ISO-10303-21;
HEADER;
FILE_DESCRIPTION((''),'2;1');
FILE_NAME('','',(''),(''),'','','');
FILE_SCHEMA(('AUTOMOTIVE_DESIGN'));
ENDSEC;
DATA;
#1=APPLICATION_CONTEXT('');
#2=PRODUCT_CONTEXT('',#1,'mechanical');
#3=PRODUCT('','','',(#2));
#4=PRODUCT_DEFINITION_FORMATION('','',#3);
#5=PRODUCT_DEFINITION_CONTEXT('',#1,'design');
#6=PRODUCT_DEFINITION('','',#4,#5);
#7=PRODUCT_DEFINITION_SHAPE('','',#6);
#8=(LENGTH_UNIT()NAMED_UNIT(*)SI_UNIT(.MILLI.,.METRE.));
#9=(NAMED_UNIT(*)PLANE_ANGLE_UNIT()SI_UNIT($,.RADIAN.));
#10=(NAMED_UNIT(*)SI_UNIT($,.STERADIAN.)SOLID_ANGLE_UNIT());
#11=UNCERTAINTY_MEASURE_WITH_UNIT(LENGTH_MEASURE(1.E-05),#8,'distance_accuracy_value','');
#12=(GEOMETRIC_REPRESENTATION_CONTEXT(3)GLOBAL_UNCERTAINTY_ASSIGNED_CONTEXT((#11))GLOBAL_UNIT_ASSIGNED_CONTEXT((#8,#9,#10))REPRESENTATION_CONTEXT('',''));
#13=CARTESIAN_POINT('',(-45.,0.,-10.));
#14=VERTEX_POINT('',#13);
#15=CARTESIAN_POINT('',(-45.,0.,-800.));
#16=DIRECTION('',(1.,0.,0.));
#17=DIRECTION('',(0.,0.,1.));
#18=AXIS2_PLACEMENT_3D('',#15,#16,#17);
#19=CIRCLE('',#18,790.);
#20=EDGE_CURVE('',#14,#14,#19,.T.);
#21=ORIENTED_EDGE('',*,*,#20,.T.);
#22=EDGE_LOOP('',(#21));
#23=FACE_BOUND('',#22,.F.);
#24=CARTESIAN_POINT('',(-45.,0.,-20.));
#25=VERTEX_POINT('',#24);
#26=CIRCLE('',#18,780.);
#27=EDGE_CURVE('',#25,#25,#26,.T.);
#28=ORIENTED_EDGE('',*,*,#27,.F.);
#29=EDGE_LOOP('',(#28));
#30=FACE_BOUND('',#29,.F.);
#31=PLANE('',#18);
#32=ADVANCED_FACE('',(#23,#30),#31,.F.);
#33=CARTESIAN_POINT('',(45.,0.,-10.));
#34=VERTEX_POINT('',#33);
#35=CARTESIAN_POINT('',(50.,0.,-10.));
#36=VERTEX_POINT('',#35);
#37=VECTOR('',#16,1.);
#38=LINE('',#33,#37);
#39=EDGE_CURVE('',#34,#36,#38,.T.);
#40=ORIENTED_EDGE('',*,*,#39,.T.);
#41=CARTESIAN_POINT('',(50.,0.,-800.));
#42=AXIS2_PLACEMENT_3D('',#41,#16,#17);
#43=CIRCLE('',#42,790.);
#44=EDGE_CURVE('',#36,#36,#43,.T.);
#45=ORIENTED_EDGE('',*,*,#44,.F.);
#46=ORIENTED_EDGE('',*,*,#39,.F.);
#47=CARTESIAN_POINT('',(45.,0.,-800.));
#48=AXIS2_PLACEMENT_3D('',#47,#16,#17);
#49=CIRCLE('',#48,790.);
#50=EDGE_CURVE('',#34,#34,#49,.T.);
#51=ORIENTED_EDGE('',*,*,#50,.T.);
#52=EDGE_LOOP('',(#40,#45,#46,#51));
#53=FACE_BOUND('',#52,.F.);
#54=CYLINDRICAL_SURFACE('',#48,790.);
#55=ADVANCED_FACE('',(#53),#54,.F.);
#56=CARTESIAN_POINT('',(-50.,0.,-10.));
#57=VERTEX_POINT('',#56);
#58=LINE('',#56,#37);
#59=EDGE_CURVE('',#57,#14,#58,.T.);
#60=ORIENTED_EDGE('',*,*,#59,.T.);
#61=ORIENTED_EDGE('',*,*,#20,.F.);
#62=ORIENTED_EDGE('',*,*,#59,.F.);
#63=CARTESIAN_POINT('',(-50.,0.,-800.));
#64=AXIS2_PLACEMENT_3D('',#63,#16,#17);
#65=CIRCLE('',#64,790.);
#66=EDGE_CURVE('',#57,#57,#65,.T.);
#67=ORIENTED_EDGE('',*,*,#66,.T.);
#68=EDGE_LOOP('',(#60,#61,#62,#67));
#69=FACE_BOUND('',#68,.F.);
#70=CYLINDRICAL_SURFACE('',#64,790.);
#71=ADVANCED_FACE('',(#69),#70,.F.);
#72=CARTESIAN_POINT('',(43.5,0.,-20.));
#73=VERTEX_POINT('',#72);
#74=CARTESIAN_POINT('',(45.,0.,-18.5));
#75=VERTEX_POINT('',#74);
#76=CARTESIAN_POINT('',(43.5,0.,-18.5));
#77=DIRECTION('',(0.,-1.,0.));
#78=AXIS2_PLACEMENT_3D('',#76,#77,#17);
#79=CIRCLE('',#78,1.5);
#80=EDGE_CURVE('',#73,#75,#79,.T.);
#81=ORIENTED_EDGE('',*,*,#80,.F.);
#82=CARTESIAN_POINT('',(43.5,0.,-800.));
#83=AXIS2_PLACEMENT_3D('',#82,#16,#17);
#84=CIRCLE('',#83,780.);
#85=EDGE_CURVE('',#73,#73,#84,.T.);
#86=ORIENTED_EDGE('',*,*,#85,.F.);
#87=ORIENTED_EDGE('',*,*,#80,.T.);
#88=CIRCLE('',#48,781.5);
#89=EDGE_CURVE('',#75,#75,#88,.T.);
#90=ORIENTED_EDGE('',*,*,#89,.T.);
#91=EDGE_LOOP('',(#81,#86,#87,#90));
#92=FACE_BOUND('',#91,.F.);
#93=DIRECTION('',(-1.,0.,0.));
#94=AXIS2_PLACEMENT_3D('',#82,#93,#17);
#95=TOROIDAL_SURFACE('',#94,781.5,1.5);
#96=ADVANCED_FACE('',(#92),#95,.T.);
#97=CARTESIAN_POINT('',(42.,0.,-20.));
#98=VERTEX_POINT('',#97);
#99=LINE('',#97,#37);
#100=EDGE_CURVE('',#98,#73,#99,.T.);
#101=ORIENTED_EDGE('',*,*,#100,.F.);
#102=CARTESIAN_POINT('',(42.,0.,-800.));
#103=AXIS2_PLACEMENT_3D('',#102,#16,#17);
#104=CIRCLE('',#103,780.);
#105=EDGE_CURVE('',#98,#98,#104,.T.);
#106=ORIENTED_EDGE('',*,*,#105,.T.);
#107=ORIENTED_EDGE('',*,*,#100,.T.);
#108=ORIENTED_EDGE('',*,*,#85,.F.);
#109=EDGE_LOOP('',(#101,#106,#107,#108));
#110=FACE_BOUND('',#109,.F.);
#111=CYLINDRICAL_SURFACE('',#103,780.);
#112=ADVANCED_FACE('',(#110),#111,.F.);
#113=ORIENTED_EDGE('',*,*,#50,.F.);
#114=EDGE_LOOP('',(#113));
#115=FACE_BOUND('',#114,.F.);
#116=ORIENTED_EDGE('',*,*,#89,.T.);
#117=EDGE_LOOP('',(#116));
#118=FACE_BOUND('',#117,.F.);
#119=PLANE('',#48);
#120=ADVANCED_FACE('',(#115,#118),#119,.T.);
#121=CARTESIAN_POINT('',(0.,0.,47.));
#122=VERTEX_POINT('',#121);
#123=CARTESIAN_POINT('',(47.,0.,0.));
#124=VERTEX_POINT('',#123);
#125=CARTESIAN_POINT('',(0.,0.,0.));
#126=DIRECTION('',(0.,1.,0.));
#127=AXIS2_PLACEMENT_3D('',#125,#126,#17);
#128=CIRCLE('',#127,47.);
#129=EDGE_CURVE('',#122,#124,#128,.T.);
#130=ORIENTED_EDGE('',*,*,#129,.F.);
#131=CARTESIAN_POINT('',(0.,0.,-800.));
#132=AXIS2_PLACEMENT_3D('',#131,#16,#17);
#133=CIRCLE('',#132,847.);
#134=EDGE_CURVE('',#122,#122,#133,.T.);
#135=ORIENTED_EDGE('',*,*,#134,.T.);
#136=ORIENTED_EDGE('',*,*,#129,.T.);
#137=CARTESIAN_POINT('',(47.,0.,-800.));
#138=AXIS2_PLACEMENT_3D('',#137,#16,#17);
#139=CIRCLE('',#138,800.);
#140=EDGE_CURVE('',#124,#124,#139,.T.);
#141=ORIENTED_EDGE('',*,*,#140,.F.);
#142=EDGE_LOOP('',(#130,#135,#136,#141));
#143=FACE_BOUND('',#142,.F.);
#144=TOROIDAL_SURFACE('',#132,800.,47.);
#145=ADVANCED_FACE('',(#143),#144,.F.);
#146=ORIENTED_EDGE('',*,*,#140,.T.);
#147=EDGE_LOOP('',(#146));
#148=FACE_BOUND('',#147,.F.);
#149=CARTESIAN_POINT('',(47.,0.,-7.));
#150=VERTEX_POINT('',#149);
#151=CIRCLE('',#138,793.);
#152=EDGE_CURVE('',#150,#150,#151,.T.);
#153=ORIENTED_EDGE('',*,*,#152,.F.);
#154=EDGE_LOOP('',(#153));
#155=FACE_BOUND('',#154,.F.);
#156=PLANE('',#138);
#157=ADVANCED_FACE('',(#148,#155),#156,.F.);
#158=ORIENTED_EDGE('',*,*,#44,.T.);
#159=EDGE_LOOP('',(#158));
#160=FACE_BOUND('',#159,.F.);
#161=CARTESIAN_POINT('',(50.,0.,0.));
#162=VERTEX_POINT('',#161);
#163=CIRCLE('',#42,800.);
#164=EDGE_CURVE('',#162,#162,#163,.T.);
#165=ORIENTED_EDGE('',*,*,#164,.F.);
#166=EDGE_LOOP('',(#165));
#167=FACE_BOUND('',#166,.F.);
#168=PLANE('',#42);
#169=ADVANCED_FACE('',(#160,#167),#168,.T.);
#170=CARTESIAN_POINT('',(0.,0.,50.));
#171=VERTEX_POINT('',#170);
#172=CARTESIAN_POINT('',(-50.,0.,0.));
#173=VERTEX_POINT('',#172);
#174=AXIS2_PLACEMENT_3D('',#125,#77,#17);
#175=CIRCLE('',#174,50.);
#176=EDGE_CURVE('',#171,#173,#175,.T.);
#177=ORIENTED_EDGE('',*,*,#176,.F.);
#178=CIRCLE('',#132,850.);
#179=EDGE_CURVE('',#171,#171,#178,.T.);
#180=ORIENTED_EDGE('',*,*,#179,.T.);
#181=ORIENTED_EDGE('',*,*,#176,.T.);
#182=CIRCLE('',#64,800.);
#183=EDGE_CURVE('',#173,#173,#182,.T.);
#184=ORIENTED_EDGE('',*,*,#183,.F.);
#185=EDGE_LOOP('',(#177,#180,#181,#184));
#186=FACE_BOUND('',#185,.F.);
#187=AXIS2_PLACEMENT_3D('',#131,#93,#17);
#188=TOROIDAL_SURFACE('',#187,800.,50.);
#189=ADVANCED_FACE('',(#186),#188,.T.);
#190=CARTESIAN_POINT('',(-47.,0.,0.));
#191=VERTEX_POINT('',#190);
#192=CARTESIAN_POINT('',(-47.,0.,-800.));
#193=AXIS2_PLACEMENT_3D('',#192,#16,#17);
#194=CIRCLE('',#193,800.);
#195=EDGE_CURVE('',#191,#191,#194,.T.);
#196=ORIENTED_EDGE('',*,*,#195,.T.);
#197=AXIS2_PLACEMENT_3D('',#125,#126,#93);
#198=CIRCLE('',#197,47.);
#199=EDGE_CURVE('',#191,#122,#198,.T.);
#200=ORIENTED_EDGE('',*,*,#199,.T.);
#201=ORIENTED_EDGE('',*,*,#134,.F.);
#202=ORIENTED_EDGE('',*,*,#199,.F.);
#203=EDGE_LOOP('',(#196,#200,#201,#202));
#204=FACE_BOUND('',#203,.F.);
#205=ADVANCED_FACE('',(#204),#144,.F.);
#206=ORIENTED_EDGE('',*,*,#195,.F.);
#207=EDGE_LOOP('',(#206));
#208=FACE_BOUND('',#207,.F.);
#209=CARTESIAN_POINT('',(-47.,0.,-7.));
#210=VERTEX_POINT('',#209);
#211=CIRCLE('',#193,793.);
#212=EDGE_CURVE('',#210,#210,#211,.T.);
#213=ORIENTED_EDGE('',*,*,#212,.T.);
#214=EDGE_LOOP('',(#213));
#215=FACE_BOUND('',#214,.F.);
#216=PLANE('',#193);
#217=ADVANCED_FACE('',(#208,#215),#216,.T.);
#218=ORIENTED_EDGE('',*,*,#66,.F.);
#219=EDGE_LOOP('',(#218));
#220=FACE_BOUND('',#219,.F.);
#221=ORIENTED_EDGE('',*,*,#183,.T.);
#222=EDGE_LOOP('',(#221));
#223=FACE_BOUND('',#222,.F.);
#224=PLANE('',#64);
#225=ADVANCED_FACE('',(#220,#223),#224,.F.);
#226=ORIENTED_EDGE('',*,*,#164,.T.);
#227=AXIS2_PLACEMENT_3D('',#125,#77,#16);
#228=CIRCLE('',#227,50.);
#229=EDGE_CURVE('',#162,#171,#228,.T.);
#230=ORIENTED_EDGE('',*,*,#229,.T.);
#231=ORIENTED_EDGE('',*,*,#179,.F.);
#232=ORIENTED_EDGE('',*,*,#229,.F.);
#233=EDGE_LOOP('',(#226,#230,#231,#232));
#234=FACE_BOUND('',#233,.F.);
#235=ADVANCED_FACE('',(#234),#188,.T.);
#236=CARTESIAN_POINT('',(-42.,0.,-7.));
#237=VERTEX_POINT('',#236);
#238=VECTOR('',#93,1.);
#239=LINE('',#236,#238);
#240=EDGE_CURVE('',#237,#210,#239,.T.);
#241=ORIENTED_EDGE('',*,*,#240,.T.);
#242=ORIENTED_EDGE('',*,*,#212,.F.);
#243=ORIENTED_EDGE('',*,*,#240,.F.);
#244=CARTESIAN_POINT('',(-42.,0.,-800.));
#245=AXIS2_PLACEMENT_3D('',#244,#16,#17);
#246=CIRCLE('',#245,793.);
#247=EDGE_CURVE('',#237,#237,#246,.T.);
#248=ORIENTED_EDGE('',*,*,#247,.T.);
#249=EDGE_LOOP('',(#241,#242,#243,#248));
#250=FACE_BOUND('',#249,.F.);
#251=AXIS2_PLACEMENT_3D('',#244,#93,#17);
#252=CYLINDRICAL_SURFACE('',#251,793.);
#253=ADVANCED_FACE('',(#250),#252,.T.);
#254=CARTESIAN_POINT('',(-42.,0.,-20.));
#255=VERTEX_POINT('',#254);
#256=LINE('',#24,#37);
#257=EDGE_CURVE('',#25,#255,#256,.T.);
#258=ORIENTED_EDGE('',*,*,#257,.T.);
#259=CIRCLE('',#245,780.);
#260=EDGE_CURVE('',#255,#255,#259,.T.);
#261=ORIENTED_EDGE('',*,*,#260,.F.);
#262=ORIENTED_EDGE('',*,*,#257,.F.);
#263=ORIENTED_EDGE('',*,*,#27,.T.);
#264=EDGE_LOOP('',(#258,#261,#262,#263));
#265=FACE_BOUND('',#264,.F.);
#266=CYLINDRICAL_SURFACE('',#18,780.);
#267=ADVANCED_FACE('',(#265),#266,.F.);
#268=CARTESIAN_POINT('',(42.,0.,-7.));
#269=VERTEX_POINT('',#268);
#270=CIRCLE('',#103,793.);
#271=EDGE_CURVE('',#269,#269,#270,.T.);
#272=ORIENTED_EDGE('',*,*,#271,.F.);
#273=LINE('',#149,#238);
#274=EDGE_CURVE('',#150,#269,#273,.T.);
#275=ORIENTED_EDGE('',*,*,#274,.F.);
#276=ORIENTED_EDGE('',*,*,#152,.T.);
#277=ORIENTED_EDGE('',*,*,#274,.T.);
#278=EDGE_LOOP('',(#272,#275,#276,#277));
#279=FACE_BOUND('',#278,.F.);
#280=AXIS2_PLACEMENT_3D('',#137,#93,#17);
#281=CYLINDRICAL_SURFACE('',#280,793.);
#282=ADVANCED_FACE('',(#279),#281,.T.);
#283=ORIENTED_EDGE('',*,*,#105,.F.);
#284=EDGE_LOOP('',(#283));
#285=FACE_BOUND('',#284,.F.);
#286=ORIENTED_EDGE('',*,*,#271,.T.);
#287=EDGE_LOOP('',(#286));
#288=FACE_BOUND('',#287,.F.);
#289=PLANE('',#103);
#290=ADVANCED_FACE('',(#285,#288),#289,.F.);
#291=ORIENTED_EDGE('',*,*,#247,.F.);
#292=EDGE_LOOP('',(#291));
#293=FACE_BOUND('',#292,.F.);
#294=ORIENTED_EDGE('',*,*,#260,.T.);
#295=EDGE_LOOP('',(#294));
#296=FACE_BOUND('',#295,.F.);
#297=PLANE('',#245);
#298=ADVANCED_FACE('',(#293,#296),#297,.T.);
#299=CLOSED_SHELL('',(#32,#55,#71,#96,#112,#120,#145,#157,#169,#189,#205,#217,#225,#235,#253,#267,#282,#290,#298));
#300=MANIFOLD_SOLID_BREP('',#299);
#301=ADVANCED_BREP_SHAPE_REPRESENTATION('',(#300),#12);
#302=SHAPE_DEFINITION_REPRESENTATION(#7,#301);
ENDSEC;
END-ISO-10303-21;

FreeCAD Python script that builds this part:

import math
import FreeCAD as App
import Part
import Sketcher
Q = App.Units.Quantity


def edges_at(feature, points):
    """Names of the edges that pass closest to the given points."""
    edges = feature.Shape.Edges
    near = lambda p: min(range(len(edges)), key=lambda i: edges[i].distToShape(Part.Vertex(*p))[0])
    return sorted({f"Edge{near(p) + 1}" for p in points})

doc = App.newDocument("Part")
body = doc.addObject("PartDesign::Body", "Body")

# Sketch on XZ plane
sketch1 = body.newObject("Sketcher::SketchObject", "Sketch")
sketch1.AttachmentSupport = (doc.getObject("XZ_Plane"), [""])
sketch1.MapMode = "FlatFace"
sketch1.addGeometry([
    Part.ArcOfCircle(Part.Circle(App.Vector(0, 0, 0), App.Vector(0, 0, 1), 50), math.radians(90), math.radians(180)),  # 0
    Part.LineSegment(App.Vector(-50, 0, 0), App.Vector(-50, -10, 0)),  # 1
    Part.LineSegment(App.Vector(-50, -10, 0), App.Vector(-45, -10, 0)),  # 2
    Part.LineSegment(App.Vector(-45, -10, 0), App.Vector(-45, -20, 0)),  # 3
    Part.LineSegment(App.Vector(-45, -20, 0), App.Vector(-42, -20, 0)),  # 4
    Part.LineSegment(App.Vector(-42, -20, 0), App.Vector(-42, -7, 0)),  # 5
    Part.LineSegment(App.Vector(-42, -7, 0), App.Vector(-47, -7, 0)),  # 6
    Part.LineSegment(App.Vector(-47, -7, 0), App.Vector(-47, 0, 0)),  # 7
    Part.ArcOfCircle(Part.Circle(App.Vector(0, 0, 0), App.Vector(0, 0, 1), 47), math.radians(90), math.radians(180)),  # 8
    Part.ArcOfCircle(Part.Circle(App.Vector(0, 0, 0), App.Vector(0, 0, 1), 47), math.radians(0), math.radians(90)),  # 9
    Part.LineSegment(App.Vector(47, 0, 0), App.Vector(47, -7, 0)),  # 10
    Part.LineSegment(App.Vector(47, -7, 0), App.Vector(42, -7, 0)),  # 11
    Part.LineSegment(App.Vector(42, -7, 0), App.Vector(42, -20, 0)),  # 12
    Part.LineSegment(App.Vector(42, -20, 0), App.Vector(45, -20, 0)),  # 13
    Part.LineSegment(App.Vector(45, -20, 0), App.Vector(45, -10, 0)),  # 14
    Part.LineSegment(App.Vector(45, -10, 0), App.Vector(50, -10, 0)),  # 15
    Part.LineSegment(App.Vector(50, -10, 0), App.Vector(50, 0, 0)),  # 16
    Part.ArcOfCircle(Part.Circle(App.Vector(0, 0, 0), App.Vector(0, 0, 1), 50), math.radians(0), math.radians(90)),  # 17
], False)
sketch1.addGeometry(Part.LineSegment(App.Vector(-50, -800, 0), App.Vector(50, -800, 0)), True)  # axis
sketch1.addConstraint([
    Sketcher.Constraint("Tangent", 0, 2, 1, 1),
    Sketcher.Constraint("Coincident", 1, 2, 2, 1),
    Sketcher.Constraint("Coincident", 2, 2, 3, 1),
    Sketcher.Constraint("Coincident", 3, 2, 4, 1),
    Sketcher.Constraint("Coincident", 4, 2, 5, 1),
    Sketcher.Constraint("Coincident", 5, 2, 6, 1),
    Sketcher.Constraint("Coincident", 6, 2, 7, 1),
    Sketcher.Constraint("Tangent", 7, 2, 8, 2),
    Sketcher.Constraint("Tangent", 8, 1, 9, 2),
    Sketcher.Constraint("Tangent", 9, 1, 10, 1),
    Sketcher.Constraint("Coincident", 10, 2, 11, 1),
    Sketcher.Constraint("Coincident", 11, 2, 12, 1),
    Sketcher.Constraint("Coincident", 12, 2, 13, 1),
    Sketcher.Constraint("Coincident", 13, 2, 14, 1),
    Sketcher.Constraint("Coincident", 14, 2, 15, 1),
    Sketcher.Constraint("Coincident", 15, 2, 16, 1),
    Sketcher.Constraint("Tangent", 16, 2, 17, 1),
    Sketcher.Constraint("Tangent", 17, 2, 0, 1),
    Sketcher.Constraint("Vertical", 1),
    Sketcher.Constraint("Horizontal", 2),
    Sketcher.Constraint("Vertical", 3),
    Sketcher.Constraint("Horizontal", 4),
    Sketcher.Constraint("Vertical", 5),
    Sketcher.Constraint("Horizontal", 6),
    Sketcher.Constraint("Vertical", 7),
    Sketcher.Constraint("Vertical", 10),
    Sketcher.Constraint("Horizontal", 11),
    Sketcher.Constraint("Vertical", 12),
    Sketcher.Constraint("Horizontal", 13),
    Sketcher.Constraint("Vertical", 14),
    Sketcher.Constraint("Horizontal", 15),
    Sketcher.Constraint("Vertical", 16),
    Sketcher.Constraint("Horizontal", 18),
    Sketcher.Constraint("Coincident", 0, 3, -1, 1),
    Sketcher.Constraint("Coincident", 8, 3, -1, 1),
    Sketcher.Constraint("Equal", 8, 9),
    Sketcher.Constraint("Equal", 0, 17),
    Sketcher.Constraint("Symmetric", 5, 2, 11, 2, -2),
    Sketcher.Constraint("Symmetric", 3, 2, 13, 2, -2),
    Sketcher.Constraint("PointOnObject", 8, 1, -2),
    Sketcher.Constraint("PointOnObject", 17, 2, -2),
    Sketcher.Constraint("Horizontal", 2, 2, 14, 2),
    Sketcher.Constraint("Vertical", 1, 2, 18, 1),
    Sketcher.Constraint("Vertical", 16, 2, 18, 2),
    Sketcher.Constraint("Equal", 2, 6),
    Sketcher.Constraint("Equal", 1, 3),
    Sketcher.Constraint("Radius", 0, Q("50 mm")),
    Sketcher.Constraint("Radius", 8, Q("47 mm")),
    Sketcher.Constraint("DistanceX", 2, 1, 2, 2, Q("5 mm")),
    Sketcher.Constraint("DistanceY", 1, 2, 1, 1, Q("10 mm")),
    Sketcher.Constraint("DistanceY", 5, 1, 5, 2, Q("13 mm")),
    Sketcher.Constraint("DistanceY", 18, 1, -1, 1, Q("800 mm")),
])
revolution = body.newObject("PartDesign::Revolution", "Revolution")
revolution.Profile = sketch1
revolution.ReferenceAxis = (sketch1, ["Axis0"])
revolution.Angle = 360
doc.recompute()

fillet = body.newObject("PartDesign::Fillet", "Fillet")
fillet.Base = (revolution, edges_at(revolution, [(45, 0, -1580)]))
fillet.Radius = 1.5

doc.recompute()
